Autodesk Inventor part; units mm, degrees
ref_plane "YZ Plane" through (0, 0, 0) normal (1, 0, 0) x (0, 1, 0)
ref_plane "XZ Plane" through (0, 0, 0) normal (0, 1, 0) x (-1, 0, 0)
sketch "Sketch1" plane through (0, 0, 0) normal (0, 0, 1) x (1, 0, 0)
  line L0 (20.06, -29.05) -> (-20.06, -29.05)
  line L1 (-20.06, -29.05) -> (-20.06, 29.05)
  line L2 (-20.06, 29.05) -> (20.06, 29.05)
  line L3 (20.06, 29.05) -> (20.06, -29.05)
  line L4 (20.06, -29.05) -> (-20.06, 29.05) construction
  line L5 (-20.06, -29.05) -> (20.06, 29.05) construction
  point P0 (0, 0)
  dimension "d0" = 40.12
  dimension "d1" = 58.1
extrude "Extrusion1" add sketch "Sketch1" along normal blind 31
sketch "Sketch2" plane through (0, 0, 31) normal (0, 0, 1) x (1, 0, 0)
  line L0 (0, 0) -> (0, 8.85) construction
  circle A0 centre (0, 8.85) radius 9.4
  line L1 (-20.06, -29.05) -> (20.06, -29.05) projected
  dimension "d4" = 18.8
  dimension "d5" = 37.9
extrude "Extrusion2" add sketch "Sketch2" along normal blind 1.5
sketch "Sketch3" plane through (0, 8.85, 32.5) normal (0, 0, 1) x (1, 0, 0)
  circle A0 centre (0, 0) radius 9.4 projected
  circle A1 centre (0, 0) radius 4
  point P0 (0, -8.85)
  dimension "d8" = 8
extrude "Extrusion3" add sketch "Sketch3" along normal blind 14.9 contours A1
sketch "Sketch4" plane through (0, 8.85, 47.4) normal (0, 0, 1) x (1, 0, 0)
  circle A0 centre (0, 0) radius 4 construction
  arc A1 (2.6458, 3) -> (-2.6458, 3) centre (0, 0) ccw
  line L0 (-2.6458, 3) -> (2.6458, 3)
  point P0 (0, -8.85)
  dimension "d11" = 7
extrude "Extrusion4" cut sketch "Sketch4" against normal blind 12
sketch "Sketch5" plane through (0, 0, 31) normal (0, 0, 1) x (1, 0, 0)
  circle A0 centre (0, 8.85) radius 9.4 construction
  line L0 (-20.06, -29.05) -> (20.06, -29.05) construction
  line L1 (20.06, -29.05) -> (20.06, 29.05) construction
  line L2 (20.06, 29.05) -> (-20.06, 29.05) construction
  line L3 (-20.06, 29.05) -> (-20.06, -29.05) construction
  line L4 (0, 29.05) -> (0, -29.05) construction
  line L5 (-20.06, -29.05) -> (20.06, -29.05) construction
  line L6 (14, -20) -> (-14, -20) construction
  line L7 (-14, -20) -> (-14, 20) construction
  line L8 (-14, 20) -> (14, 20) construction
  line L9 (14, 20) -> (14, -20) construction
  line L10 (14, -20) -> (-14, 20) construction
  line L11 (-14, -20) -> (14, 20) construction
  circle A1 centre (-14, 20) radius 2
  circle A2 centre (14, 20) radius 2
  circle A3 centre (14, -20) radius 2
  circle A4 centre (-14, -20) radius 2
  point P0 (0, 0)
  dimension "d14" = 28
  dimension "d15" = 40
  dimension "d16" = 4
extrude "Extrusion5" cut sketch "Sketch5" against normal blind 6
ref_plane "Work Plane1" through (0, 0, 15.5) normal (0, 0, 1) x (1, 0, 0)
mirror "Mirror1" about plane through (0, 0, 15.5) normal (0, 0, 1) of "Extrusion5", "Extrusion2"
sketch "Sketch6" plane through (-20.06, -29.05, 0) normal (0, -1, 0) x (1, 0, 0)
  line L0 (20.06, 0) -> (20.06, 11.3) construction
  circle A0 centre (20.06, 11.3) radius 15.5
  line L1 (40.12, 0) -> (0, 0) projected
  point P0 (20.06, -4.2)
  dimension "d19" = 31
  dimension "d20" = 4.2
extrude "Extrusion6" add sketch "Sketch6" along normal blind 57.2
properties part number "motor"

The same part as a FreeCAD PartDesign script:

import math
import FreeCAD as App
import Part
import Sketcher
from FreeCAD import Vector

doc = App.newDocument("Part")
body = doc.addObject("PartDesign::Body", "Body")

# Sketch on XY plane
sketch1 = body.newObject("Sketcher::SketchObject", "Sketch")
sketch1.AttachmentSupport = (doc.getObject("XY_Plane"), [""])
sketch1.MapMode = "FlatFace"
sketch1.addGeometry(Part.LineSegment(Vector(-20, -29, 0), Vector(20, -29, 0)), False)
sketch1.addGeometry(Part.LineSegment(Vector(20, -29, 0), Vector(20, 29, 0)), False)
sketch1.addGeometry(Part.LineSegment(Vector(20, 29, 0), Vector(-20, 29, 0)), False)
sketch1.addGeometry(Part.LineSegment(Vector(-20, 29, 0), Vector(-20, -29, 0)), False)
sketch1.addConstraint(Sketcher.Constraint("Coincident", 0, 2, 1, 1))
sketch1.addConstraint(Sketcher.Constraint("Coincident", 1, 2, 2, 1))
sketch1.addConstraint(Sketcher.Constraint("Coincident", 2, 2, 3, 1))
sketch1.addConstraint(Sketcher.Constraint("Coincident", 3, 2, 0, 1))
sketch1.addConstraint(Sketcher.Constraint("Horizontal", 0))
sketch1.addConstraint(Sketcher.Constraint("Vertical", 1))
sketch1.addConstraint(Sketcher.Constraint("Horizontal", 2))
sketch1.addConstraint(Sketcher.Constraint("Vertical", 3))
sketch1.addConstraint(Sketcher.Constraint("Symmetric", 0, 2, 2, 2, -1, 1))
sketch1.addConstraint(Sketcher.Constraint("DistanceY", 1, 1, 1, 2, 58.1))
sketch1.addConstraint(Sketcher.Constraint("DistanceX", 0, 1, 0, 2, 40.12))
pad1 = body.newObject("PartDesign::Pad", "Pad")
pad1.Profile = sketch1
pad1.Length = 31

# Sketch on XY plane
sketch2 = body.newObject("Sketcher::SketchObject", "Sketch001")
sketch2.AttachmentSupport = (doc.getObject("XY_Plane"), [""])
sketch2.MapMode = "FlatFace"
sketch2.AttachmentOffset = App.Placement(Vector(0, 0, 31), App.Rotation())
sketch2.addGeometry(Part.Circle(Vector(0, 9, 0), Vector(0, 0, 1), 9), False)
sketch2.addConstraint(Sketcher.Constraint("PointOnObject", 0, 3, -2))
sketch2.addConstraint(Sketcher.Constraint("Diameter", 0, 18.8))
sketch2.addConstraint(Sketcher.Constraint("DistanceY", -1, 1, 0, 3, 8.85))
pad2 = body.newObject("PartDesign::Pad", "Pad001")
pad2.Profile = sketch2
pad2.Length = 1.5

# Sketch on XY plane
sketch3 = body.newObject("Sketcher::SketchObject", "Sketch002")
sketch3.AttachmentSupport = (doc.getObject("XY_Plane"), [""])
sketch3.MapMode = "FlatFace"
sketch3.AttachmentOffset = App.Placement(Vector(0, 0, 32.5), App.Rotation())
sketch3.addGeometry(Part.Circle(Vector(0, 8.8, 0), Vector(0, 0, 1), 4), False)
sketch3.addConstraint(Sketcher.Constraint("PointOnObject", 0, 3, -2))
sketch3.addConstraint(Sketcher.Constraint("Diameter", 0, 8.0))
sketch3.addConstraint(Sketcher.Constraint("DistanceY", -1, 1, 0, 3, 8.85))
pad3 = body.newObject("PartDesign::Pad", "Pad002")
pad3.Profile = sketch3
pad3.Length = 14.9

# Sketch on XY plane
sketch4 = body.newObject("Sketcher::SketchObject", "Sketch003")
sketch4.AttachmentSupport = (doc.getObject("XY_Plane"), [""])
sketch4.MapMode = "FlatFace"
sketch4.AttachmentOffset = App.Placement(Vector(0, 0, 47.4), App.Rotation())
sketch4.addGeometry(Part.LineSegment(Vector(-2.6, 11.8, 0), Vector(2.6, 11.8, 0)), False)
sketch4.addGeometry(Part.ArcOfCircle(Part.Circle(Vector(0, 8.8, 0), Vector(0, 0, 1), 4), math.radians(49), math.radians(131)), False)
sketch4.addConstraint(Sketcher.Constraint("Coincident", 0, 1, 1, 2))
sketch4.addConstraint(Sketcher.Constraint("Coincident", 1, 1, 0, 2))
sketch4.addConstraint(Sketcher.Constraint("Horizontal", 0))
sketch4.addConstraint(Sketcher.Constraint("PointOnObject", 1, 3, -2))
sketch4.addConstraint(Sketcher.Constraint("Radius", 1, 4.0))
sketch4.addConstraint(Sketcher.Constraint("DistanceY", 1, 3, 0, 1, 3.0))
sketch4.addConstraint(Sketcher.Constraint("DistanceY", -1, 1, 1, 3, 8.85))
pocket1 = body.newObject("PartDesign::Pocket", "Pocket")
pocket1.Profile = sketch4
pocket1.Length = 12

# Sketch on XY plane
sketch5 = body.newObject("Sketcher::SketchObject", "Sketch004")
sketch5.AttachmentSupport = (doc.getObject("XY_Plane"), [""])
sketch5.MapMode = "FlatFace"
sketch5.AttachmentOffset = App.Placement(Vector(0, 0, 31), App.Rotation())
sketch5.addGeometry(Part.Circle(Vector(-14, 20, 0), Vector(0, 0, 1), 2), False)
sketch5.addGeometry(Part.Circle(Vector(14, 20, 0), Vector(0, 0, 1), 2), False)
sketch5.addGeometry(Part.Circle(Vector(14, -20, 0), Vector(0, 0, 1), 2), False)
sketch5.addGeometry(Part.Circle(Vector(-14, -20, 0), Vector(0, 0, 1), 2), False)
sketch5.addConstraint(Sketcher.Constraint("Equal", 0, 1))
sketch5.addConstraint(Sketcher.Constraint("Equal", 1, 2))
sketch5.addConstraint(Sketcher.Constraint("Equal", 2, 3))
sketch5.addConstraint(Sketcher.Constraint("Symmetric", 0, 3, 2, 3, -1, 1))
sketch5.addConstraint(Sketcher.Constraint("Symmetric", 1, 3, 3, 3, -1, 1))
sketch5.addConstraint(Sketcher.Constraint("Symmetric", 0, 3, 1, 3, -2))
sketch5.addConstraint(Sketcher.Constraint("Diameter", 0, 4.0))
sketch5.addConstraint(Sketcher.Constraint("DistanceX", 0, 3, 1, 3, 28.0))
sketch5.addConstraint(Sketcher.Constraint("DistanceY", 2, 3, 1, 3, 40.0))
pocket2 = body.newObject("PartDesign::Pocket", "Pocket001")
pocket2.Profile = sketch5
pocket2.Length = 6
doc.recompute()

datumplane = body.newObject("PartDesign::Plane", "DatumPlane")
datumplane.AttachmentSupport = (doc.getObject("XY_Plane"), [""])
datumplane.MapMode = "FlatFace"
datumplane.AttachmentOffset = App.Placement(Vector(0, 0, 15.5), App.Rotation())
mirrored = body.newObject("PartDesign::Mirrored", "Mirrored")
mirrored.Originals = [pocket2, pad2]
mirrored.MirrorPlane = (datumplane, [""])
body.Tip = mirrored

# Sketch on XZ plane
sketch6 = body.newObject("Sketcher::SketchObject", "Sketch005")
sketch6.AttachmentSupport = (doc.getObject("XZ_Plane"), [""])
sketch6.MapMode = "FlatFace"
sketch6.AttachmentOffset = App.Placement(Vector(0, 0, 29.05), App.Rotation())
sketch6.addGeometry(Part.Circle(Vector(0, 11, 0), Vector(0, 0, 1), 16), False)
sketch6.addConstraint(Sketcher.Constraint("PointOnObject", 0, 3, -2))
sketch6.addConstraint(Sketcher.Constraint("Diameter", 0, 31.0))
sketch6.addConstraint(Sketcher.Constraint("DistanceY", -1, 1, 0, 3, 11.3))
pad4 = body.newObject("PartDesign::Pad", "Pad003")
pad4.Profile = sketch6
pad4.Length = 57.2

doc.recompute()
